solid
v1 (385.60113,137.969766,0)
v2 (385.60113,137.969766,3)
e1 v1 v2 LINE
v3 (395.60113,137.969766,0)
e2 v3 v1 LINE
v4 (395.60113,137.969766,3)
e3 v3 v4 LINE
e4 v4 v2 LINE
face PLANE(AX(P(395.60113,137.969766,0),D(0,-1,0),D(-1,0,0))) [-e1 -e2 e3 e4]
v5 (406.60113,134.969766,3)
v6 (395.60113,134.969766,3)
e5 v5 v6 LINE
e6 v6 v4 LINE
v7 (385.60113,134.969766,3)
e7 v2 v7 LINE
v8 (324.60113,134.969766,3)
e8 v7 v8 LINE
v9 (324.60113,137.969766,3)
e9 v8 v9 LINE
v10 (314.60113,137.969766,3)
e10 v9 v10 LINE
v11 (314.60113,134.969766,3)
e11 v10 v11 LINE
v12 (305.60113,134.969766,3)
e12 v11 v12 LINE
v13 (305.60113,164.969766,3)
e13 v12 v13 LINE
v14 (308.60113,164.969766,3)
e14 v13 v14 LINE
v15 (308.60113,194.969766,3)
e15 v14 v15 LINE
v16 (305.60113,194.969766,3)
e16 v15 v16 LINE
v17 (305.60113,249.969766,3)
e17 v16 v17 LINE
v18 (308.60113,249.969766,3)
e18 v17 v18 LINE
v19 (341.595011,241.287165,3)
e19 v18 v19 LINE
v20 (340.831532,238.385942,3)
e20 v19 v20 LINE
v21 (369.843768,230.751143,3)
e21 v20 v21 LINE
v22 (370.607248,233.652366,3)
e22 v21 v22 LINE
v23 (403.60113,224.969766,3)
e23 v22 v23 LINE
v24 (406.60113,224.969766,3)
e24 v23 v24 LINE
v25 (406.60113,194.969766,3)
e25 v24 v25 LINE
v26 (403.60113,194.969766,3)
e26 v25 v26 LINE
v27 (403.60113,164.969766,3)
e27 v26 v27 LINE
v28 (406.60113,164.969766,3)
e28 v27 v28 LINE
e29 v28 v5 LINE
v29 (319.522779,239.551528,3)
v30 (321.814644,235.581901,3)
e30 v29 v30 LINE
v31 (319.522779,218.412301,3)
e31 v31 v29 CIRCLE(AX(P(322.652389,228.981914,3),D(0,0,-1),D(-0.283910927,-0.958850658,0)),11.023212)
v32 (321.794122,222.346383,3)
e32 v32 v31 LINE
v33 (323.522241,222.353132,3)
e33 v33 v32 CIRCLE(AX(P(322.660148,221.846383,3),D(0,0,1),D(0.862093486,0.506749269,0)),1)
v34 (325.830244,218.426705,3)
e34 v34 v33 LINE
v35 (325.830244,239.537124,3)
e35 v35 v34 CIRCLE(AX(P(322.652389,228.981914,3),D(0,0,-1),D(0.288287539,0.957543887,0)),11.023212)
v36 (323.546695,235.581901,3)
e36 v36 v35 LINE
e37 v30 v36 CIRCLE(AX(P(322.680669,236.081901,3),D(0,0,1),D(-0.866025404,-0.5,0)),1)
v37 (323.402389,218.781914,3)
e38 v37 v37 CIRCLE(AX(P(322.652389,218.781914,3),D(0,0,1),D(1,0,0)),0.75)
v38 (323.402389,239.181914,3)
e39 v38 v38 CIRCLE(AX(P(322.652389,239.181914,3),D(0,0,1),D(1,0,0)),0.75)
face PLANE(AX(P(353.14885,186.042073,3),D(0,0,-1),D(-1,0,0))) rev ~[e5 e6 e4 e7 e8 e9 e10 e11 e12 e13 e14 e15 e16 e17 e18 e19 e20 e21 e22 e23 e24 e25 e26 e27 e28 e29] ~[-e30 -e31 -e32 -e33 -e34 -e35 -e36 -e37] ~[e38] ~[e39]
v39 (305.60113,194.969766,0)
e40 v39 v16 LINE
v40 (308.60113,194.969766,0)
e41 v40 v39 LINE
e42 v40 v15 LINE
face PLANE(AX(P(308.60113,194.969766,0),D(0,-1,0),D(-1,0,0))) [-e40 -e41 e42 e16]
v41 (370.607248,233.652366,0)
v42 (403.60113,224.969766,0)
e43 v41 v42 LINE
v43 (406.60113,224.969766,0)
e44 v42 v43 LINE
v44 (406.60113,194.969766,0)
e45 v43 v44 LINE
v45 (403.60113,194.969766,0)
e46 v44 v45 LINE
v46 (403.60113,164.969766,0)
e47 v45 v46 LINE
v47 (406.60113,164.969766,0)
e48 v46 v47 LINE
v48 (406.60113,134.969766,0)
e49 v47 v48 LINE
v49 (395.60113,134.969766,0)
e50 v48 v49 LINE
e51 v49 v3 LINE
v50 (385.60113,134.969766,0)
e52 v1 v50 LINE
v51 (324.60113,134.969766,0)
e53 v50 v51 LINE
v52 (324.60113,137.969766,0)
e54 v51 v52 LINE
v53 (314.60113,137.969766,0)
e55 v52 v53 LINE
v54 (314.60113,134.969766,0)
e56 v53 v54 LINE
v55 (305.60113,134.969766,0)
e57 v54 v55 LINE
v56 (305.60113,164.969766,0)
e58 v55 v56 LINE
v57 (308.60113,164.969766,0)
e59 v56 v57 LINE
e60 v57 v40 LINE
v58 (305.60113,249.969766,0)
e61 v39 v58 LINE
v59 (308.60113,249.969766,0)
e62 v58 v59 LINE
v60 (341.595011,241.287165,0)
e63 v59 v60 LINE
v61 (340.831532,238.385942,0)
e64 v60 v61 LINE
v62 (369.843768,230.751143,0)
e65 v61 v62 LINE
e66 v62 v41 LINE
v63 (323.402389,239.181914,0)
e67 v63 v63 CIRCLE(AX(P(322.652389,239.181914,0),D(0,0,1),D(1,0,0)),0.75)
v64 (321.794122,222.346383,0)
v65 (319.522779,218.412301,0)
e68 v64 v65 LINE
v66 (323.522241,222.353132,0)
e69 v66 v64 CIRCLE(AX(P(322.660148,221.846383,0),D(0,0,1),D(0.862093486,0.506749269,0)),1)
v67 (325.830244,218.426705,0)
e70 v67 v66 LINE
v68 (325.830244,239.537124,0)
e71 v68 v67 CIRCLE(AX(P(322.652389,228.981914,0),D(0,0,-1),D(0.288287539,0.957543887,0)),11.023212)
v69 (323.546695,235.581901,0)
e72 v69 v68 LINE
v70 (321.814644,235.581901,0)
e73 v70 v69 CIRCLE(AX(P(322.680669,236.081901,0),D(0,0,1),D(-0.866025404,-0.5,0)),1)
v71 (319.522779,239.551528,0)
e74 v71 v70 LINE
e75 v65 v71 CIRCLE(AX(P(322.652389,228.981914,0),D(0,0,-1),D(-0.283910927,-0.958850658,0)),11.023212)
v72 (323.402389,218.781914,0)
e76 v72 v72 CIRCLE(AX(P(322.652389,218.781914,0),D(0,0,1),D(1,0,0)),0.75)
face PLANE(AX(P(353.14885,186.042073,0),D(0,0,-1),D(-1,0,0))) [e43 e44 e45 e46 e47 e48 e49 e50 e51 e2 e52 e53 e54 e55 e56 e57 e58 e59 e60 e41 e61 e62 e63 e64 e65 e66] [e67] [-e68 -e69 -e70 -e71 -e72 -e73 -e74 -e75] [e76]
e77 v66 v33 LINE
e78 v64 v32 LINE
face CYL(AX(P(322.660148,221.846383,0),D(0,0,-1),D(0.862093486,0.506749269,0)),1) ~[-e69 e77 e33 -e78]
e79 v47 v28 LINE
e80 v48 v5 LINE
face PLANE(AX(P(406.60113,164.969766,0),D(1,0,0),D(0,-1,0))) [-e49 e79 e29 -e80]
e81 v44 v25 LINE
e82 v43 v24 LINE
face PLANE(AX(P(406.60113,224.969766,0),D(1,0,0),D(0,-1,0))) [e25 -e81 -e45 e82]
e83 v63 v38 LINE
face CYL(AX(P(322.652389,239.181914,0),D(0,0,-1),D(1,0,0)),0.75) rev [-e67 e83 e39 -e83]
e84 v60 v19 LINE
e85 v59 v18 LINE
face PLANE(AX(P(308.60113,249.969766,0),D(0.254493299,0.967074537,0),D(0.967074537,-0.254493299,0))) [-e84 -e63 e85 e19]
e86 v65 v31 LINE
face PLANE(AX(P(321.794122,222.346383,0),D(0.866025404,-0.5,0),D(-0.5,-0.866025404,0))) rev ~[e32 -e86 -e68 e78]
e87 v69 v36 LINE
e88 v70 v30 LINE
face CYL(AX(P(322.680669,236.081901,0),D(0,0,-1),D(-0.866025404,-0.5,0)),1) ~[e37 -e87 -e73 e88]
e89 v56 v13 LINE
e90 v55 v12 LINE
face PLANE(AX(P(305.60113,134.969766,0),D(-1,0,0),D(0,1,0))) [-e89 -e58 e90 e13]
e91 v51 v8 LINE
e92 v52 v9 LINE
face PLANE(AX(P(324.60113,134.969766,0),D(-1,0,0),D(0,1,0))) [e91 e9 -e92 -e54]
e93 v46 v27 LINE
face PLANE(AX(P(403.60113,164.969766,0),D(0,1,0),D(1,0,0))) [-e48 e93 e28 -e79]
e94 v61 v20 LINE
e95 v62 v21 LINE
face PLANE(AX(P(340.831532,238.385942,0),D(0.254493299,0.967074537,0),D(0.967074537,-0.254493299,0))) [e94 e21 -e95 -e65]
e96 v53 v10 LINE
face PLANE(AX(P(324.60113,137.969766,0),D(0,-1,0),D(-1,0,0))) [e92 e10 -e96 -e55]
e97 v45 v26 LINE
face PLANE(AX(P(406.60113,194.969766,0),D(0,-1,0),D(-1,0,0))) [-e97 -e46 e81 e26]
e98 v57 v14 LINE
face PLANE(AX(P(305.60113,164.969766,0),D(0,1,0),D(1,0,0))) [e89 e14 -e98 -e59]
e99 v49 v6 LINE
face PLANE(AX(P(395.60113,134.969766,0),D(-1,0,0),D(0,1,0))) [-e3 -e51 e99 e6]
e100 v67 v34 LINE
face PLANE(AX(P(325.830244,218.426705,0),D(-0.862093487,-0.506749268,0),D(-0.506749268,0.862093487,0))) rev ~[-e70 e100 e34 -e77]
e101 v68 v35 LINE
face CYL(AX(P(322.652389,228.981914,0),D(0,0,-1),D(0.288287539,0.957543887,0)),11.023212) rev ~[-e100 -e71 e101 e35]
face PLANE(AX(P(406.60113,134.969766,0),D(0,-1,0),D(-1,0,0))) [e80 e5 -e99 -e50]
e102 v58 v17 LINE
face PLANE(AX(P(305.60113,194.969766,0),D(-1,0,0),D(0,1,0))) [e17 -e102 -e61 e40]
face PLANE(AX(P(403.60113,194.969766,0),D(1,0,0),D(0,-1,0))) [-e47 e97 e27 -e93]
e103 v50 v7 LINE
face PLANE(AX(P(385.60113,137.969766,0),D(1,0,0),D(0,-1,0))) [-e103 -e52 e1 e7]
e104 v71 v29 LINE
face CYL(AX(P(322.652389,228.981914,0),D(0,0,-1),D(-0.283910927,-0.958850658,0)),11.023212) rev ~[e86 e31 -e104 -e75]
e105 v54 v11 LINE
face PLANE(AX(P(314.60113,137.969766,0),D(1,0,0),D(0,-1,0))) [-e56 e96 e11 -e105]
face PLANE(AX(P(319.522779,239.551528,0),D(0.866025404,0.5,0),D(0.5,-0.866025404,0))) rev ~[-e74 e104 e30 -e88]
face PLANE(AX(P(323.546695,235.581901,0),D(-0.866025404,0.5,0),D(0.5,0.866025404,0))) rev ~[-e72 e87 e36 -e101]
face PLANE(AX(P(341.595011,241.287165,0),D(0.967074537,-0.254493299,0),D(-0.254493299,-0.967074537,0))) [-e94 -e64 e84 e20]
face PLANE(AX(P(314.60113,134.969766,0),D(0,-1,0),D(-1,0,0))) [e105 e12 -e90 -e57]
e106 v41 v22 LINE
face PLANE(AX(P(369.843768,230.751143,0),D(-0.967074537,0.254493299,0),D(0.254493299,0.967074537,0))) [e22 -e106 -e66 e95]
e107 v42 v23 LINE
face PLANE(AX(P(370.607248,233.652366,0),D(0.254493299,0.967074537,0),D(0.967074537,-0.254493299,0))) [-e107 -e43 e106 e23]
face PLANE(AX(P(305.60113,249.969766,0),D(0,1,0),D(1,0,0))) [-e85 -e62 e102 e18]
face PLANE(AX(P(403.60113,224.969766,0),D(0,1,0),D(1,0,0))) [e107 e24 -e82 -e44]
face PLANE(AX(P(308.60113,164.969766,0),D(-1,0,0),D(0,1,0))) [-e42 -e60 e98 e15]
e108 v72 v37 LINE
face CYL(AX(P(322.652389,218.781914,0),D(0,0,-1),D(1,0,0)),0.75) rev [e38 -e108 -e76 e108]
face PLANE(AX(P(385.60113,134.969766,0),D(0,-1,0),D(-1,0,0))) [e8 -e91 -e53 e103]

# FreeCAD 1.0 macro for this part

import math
import FreeCAD as App
import Part
import Sketcher

V = App.Vector
Q = App.Units.Quantity

doc = App.newDocument("Part")
params = doc.addObject("Spreadsheet::Sheet", "Params")
for row, (alias, value) in enumerate([
    ("sketch1_radius", "1 mm"),
    ("sketch1_diameter", "1.5 mm"),
    ("sketch1_width", "3 mm"),
    ("sketch1_width2", "9 mm"),
    ("sketch1_width3", "10 mm"),
    ("pad1_length", "3 mm"),
], start=1):
    params.set(f"A{row}", alias)
    params.set(f"B{row}", "=" + value)
    params.setAlias(f"B{row}", alias)

body = doc.addObject("PartDesign::Body", "Body")

sketch1 = body.newObject("Sketcher::SketchObject", "Sketch")
sketch1.AttachmentSupport = (doc.getObject("XY_Plane"), [""])
sketch1.MapMode = "FlatFace"
sketch1.addGeometry(Part.LineSegment(V(403.6, 165, 0), V(403.6, 195, 0)), False)
sketch1.addGeometry(Part.LineSegment(V(403.6, 195, 0), V(406.6, 195, 0)), False)
sketch1.addGeometry(Part.LineSegment(V(406.6, 195, 0), V(406.6, 225, 0)), False)
sketch1.addGeometry(Part.LineSegment(V(406.6, 225, 0), V(403.6, 225, 0)), False)
sketch1.addGeometry(Part.LineSegment(V(403.6, 225, 0), V(370.6, 233.7, 0)), False)
sketch1.addGeometry(Part.LineSegment(V(370.6, 233.7, 0), V(369.8, 230.8, 0)), False)
sketch1.addGeometry(Part.LineSegment(V(369.8, 230.8, 0), V(340.8, 238.4, 0)), False)
sketch1.addGeometry(Part.LineSegment(V(340.8, 238.4, 0), V(341.6, 241.3, 0)), False)
sketch1.addGeometry(Part.LineSegment(V(341.6, 241.3, 0), V(308.6, 250, 0)), False)
sketch1.addGeometry(Part.LineSegment(V(308.6, 250, 0), V(305.6, 250, 0)), False)
sketch1.addGeometry(Part.LineSegment(V(305.6, 250, 0), V(305.6, 195, 0)), False)
sketch1.addGeometry(Part.LineSegment(V(305.6, 195, 0), V(308.6, 195, 0)), False)
sketch1.addGeometry(Part.LineSegment(V(308.6, 195, 0), V(308.6, 165, 0)), False)
sketch1.addGeometry(Part.LineSegment(V(308.6, 165, 0), V(305.6, 165, 0)), False)
sketch1.addGeometry(Part.LineSegment(V(305.6, 165, 0), V(305.6, 135, 0)), False)
sketch1.addGeometry(Part.LineSegment(V(305.6, 135, 0), V(314.6, 135, 0)), False)
sketch1.addGeometry(Part.LineSegment(V(314.6, 135, 0), V(314.6, 138, 0)), False)
sketch1.addGeometry(Part.LineSegment(V(314.6, 138, 0), V(324.6, 138, 0)), False)
sketch1.addGeometry(Part.LineSegment(V(324.6, 138, 0), V(324.6, 135, 0)), False)
sketch1.addGeometry(Part.LineSegment(V(324.6, 135, 0), V(385.6, 135, 0)), False)
sketch1.addGeometry(Part.LineSegment(V(385.6, 135, 0), V(385.6, 138, 0)), False)
sketch1.addGeometry(Part.LineSegment(V(385.6, 138, 0), V(395.6, 138, 0)), False)
sketch1.addGeometry(Part.LineSegment(V(395.6, 138, 0), V(395.6, 135, 0)), False)
sketch1.addGeometry(Part.LineSegment(V(395.6, 135, 0), V(406.6, 135, 0)), False)
sketch1.addGeometry(Part.LineSegment(V(406.6, 135, 0), V(406.6, 165, 0)), False)
sketch1.addGeometry(Part.LineSegment(V(406.6, 165, 0), V(403.6, 165, 0)), False)
sketch1.addGeometry(Part.Circle(V(322.7, 218.8, 0), V(0, 0, 1), 0.8), False)
sketch1.addGeometry(Part.Circle(V(322.7, 239.2, 0), V(0, 0, 1), 0.8), False)
sketch1.addGeometry(Part.LineSegment(V(319.5, 239.6, 0), V(321.8, 235.6, 0)), False)
sketch1.addGeometry(Part.ArcOfCircle(Part.Circle(V(322.7, 236.1, 0), V(0, 0, 1), 1), math.radians(-150), math.radians(-30)), False)
sketch1.addGeometry(Part.LineSegment(V(323.5, 235.6, 0), V(325.8, 239.5, 0)), False)
sketch1.addGeometry(Part.ArcOfCircle(Part.Circle(V(322.7, 229, 0), V(0, 0, 1), 11), math.radians(-73), math.radians(73)), False)
sketch1.addGeometry(Part.LineSegment(V(325.8, 218.4, 0), V(323.5, 222.4, 0)), False)
sketch1.addGeometry(Part.ArcOfCircle(Part.Circle(V(322.7, 221.8, 0), V(0, 0, 1), 1), math.radians(30), math.radians(150)), False)
sketch1.addGeometry(Part.LineSegment(V(321.8, 222.3, 0), V(319.5, 218.4, 0)), False)
sketch1.addGeometry(Part.ArcOfCircle(Part.Circle(V(322.7, 229, 0), V(0, 0, 1), 11), math.radians(106), math.radians(254)), False)
sketch1.addConstraint(Sketcher.Constraint("Coincident", 0, 2, 1, 1))
sketch1.addConstraint(Sketcher.Constraint("Coincident", 1, 2, 2, 1))
sketch1.addConstraint(Sketcher.Constraint("Coincident", 2, 2, 3, 1))
sketch1.addConstraint(Sketcher.Constraint("Coincident", 3, 2, 4, 1))
sketch1.addConstraint(Sketcher.Constraint("Coincident", 4, 2, 5, 1))
sketch1.addConstraint(Sketcher.Constraint("Coincident", 5, 2, 6, 1))
sketch1.addConstraint(Sketcher.Constraint("Coincident", 6, 2, 7, 1))
sketch1.addConstraint(Sketcher.Constraint("Coincident", 7, 2, 8, 1))
sketch1.addConstraint(Sketcher.Constraint("Coincident", 8, 2, 9, 1))
sketch1.addConstraint(Sketcher.Constraint("Coincident", 9, 2, 10, 1))
sketch1.addConstraint(Sketcher.Constraint("Coincident", 10, 2, 11, 1))
sketch1.addConstraint(Sketcher.Constraint("Coincident", 11, 2, 12, 1))
sketch1.addConstraint(Sketcher.Constraint("Coincident", 12, 2, 13, 1))
sketch1.addConstraint(Sketcher.Constraint("Coincident", 13, 2, 14, 1))
sketch1.addConstraint(Sketcher.Constraint("Coincident", 14, 2, 15, 1))
sketch1.addConstraint(Sketcher.Constraint("Coincident", 15, 2, 16, 1))
sketch1.addConstraint(Sketcher.Constraint("Coincident", 16, 2, 17, 1))
sketch1.addConstraint(Sketcher.Constraint("Coincident", 17, 2, 18, 1))
sketch1.addConstraint(Sketcher.Constraint("Coincident", 18, 2, 19, 1))
sketch1.addConstraint(Sketcher.Constraint("Coincident", 19, 2, 20, 1))
sketch1.addConstraint(Sketcher.Constraint("Coincident", 20, 2, 21, 1))
sketch1.addConstraint(Sketcher.Constraint("Coincident", 21, 2, 22, 1))
sketch1.addConstraint(Sketcher.Constraint("Coincident", 22, 2, 23, 1))
sketch1.addConstraint(Sketcher.Constraint("Coincident", 23, 2, 24, 1))
sketch1.addConstraint(Sketcher.Constraint("Coincident", 24, 2, 25, 1))
sketch1.addConstraint(Sketcher.Constraint("Coincident", 25, 2, 0, 1))
sketch1.addConstraint(Sketcher.Constraint("Tangent", 28, 2, 29, 1))
sketch1.addConstraint(Sketcher.Constraint("Tangent", 29, 2, 30, 1))
sketch1.addConstraint(Sketcher.Constraint("Coincident", 30, 2, 31, 2))
sketch1.addConstraint(Sketcher.Constraint("Coincident", 31, 1, 32, 1))
sketch1.addConstraint(Sketcher.Constraint("Tangent", 32, 2, 33, 1))
sketch1.addConstraint(Sketcher.Constraint("Tangent", 33, 2, 34, 1))
sketch1.addConstraint(Sketcher.Constraint("Coincident", 34, 2, 35, 2))
sketch1.addConstraint(Sketcher.Constraint("Coincident", 35, 1, 28, 1))
sketch1.addConstraint(Sketcher.Constraint("Vertical", 0))
sketch1.addConstraint(Sketcher.Constraint("Horizontal", 1))
sketch1.addConstraint(Sketcher.Constraint("Vertical", 2))
sketch1.addConstraint(Sketcher.Constraint("Horizontal", 3))
sketch1.addConstraint(Sketcher.Constraint("Horizontal", 9))
sketch1.addConstraint(Sketcher.Constraint("Vertical", 10))
sketch1.addConstraint(Sketcher.Constraint("Horizontal", 11))
sketch1.addConstraint(Sketcher.Constraint("Vertical", 12))
sketch1.addConstraint(Sketcher.Constraint("Horizontal", 13))
sketch1.addConstraint(Sketcher.Constraint("Vertical", 14))
sketch1.addConstraint(Sketcher.Constraint("Horizontal", 15))
sketch1.addConstraint(Sketcher.Constraint("Vertical", 16))
sketch1.addConstraint(Sketcher.Constraint("Horizontal", 17))
sketch1.addConstraint(Sketcher.Constraint("Vertical", 18))
sketch1.addConstraint(Sketcher.Constraint("Horizontal", 19))
sketch1.addConstraint(Sketcher.Constraint("Vertical", 20))
sketch1.addConstraint(Sketcher.Constraint("Horizontal", 21))
sketch1.addConstraint(Sketcher.Constraint("Vertical", 22))
sketch1.addConstraint(Sketcher.Constraint("Horizontal", 23))
sketch1.addConstraint(Sketcher.Constraint("Vertical", 24))
sketch1.addConstraint(Sketcher.Constraint("Horizontal", 25))
sketch1.addConstraint(Sketcher.Constraint("Coincident", 35, 3, 31, 3))
sketch1.addConstraint(Sketcher.Constraint("Equal", 26, 27))
sketch1.addConstraint(Sketcher.Constraint("Equal", 29, 33))
sketch1.addConstraint(Sketcher.Constraint("Equal", 31, 35))
sketch1.addConstraint(Sketcher.Constraint("Perpendicular", 4, 5))
sketch1.addConstraint(Sketcher.Constraint("Perpendicular", 5, 6))
sketch1.addConstraint(Sketcher.Constraint("Perpendicular", 6, 7))
sketch1.addConstraint(Sketcher.Constraint("Perpendicular", 7, 8))
sketch1.addConstraint(Sketcher.Constraint("Parallel", 30, 34))
sketch1.addConstraint(Sketcher.Constraint("Horizontal", 1, 2, 10, 2))
sketch1.addConstraint(Sketcher.Constraint("Horizontal", 15, 2, 18, 2))
sketch1.addConstraint(Sketcher.Constraint("Horizontal", 17, 2, 20, 2))
sketch1.addConstraint(Sketcher.Constraint("Horizontal", 19, 2, 22, 2))
sketch1.addConstraint(Sketcher.Constraint("Horizontal", 13, 2, 24, 2))
sketch1.addConstraint(Sketcher.Constraint("Horizontal", 28, 2, 29, 2))
sketch1.addConstraint(Sketcher.Constraint("Vertical", 26, 3, 27, 3))
sketch1.addConstraint(Sketcher.Constraint("Vertical", 27, 3, 31, 3))
sketch1.addConstraint(Sketcher.Constraint("Vertical", 0, 2, 3, 2))
sketch1.addConstraint(Sketcher.Constraint("Vertical", 8, 2, 11, 2))
sketch1.addConstraint(Sketcher.Constraint("Vertical", 10, 2, 13, 2))
sketch1.addConstraint(Sketcher.Constraint("Vertical", 2, 2, 23, 2))
sketch1.addConstraint(Sketcher.Constraint("Vertical", 30, 2, 31, 1))
sketch1.addConstraint(Sketcher.Constraint("Vertical", 34, 2, 35, 1))
sketch1.addConstraint(Sketcher.Constraint("Equal", 3, 9))
sketch1.addConstraint(Sketcher.Constraint("Equal", 17, 21))
sketch1.addConstraint(Sketcher.Constraint("Equal", 0, 2))
sketch1.addConstraint(Sketcher.Constraint("Equal", 12, 14))
sketch1.addConstraint(Sketcher.Constraint("Equal", 25, 16))
sketch1.addConstraint(Sketcher.Constraint("Equal", 5, 7))
sketch1.addConstraint(Sketcher.Constraint("Equal", 4, 8))
sketch1.addConstraint(Sketcher.Constraint("Radius", 29, Q("1 mm")))
sketch1.addConstraint(Sketcher.Constraint("Diameter", 26, Q("1.5 mm")))
sketch1.addConstraint(Sketcher.Constraint("DistanceX", 1, 1, 1, 2, Q("3 mm")))
sketch1.addConstraint(Sketcher.Constraint("DistanceX", 15, 1, 15, 2, Q("9 mm")))
sketch1.addConstraint(Sketcher.Constraint("DistanceX", 17, 1, 17, 2, Q("10 mm")))
sketch1.addConstraint(Sketcher.Constraint("DistanceX", 19, 1, 19, 2, Q("61 mm")))
sketch1.addConstraint(Sketcher.Constraint("DistanceX", 23, 1, 23, 2, Q("11 mm")))
sketch1.addConstraint(Sketcher.Constraint("DistanceY", 0, 1, 0, 2, Q("30 mm")))
sketch1.addConstraint(Sketcher.Constraint("DistanceY", 10, 2, 10, 1, Q("55 mm")))
sketch1.addConstraint(Sketcher.Constraint("Angle", 28, Q("-60 deg")))
sketch1.addConstraint(Sketcher.Constraint("Distance", 5, Q("3 mm")))
sketch1.addConstraint(Sketcher.Constraint("Distance", 6, Q("30 mm")))
sketch1.addConstraint(Sketcher.Constraint("DistanceY", 26, 3, 27, 3, Q("20.4 mm")))
sketch1.addConstraint(Sketcher.Constraint("DistanceY", 31, 3, 27, 3, Q("10.2 mm")))
sketch1.addConstraint(Sketcher.Constraint("Radius", 31, Q("11.023212 mm")))
sketch1.addConstraint(Sketcher.Constraint("DistanceY", -1, 1, 29, 3, Q("236.081901 mm")))
sketch1.addConstraint(Sketcher.Constraint("DistanceY", -1, 1, 34, 2, Q("218.412301 mm")))
sketch1.addConstraint(Sketcher.Constraint("DistanceX", 28, 2, 30, 2, Q("4.0156 mm")))
sketch1.addConstraint(Sketcher.Constraint("DistanceX", -1, 1, 26, 3, Q("322.652389 mm")))
sketch1.addConstraint(Sketcher.Constraint("DistanceX", -1, 1, 0, 2, Q("403.60113 mm")))
sketch1.addConstraint(Sketcher.Constraint("DistanceY", -1, 1, 6, 2, Q("238.385942 mm")))
sketch1.addConstraint(Sketcher.Constraint("DistanceX", -1, 1, 32, 2, Q("323.522241 mm")))
sketch1.setExpression("Constraints[85]", "Params.sketch1_radius")
sketch1.setExpression("Constraints[86]", "Params.sketch1_diameter")
sketch1.setExpression("Constraints[87]", "Params.sketch1_width")
sketch1.setExpression("Constraints[88]", "Params.sketch1_width2")
sketch1.setExpression("Constraints[89]", "Params.sketch1_width3")
pad1 = body.newObject("PartDesign::Pad", "Pad")
pad1.Profile = sketch1
pad1.setExpression("Length", "Params.pad1_length")

doc.recompute()
